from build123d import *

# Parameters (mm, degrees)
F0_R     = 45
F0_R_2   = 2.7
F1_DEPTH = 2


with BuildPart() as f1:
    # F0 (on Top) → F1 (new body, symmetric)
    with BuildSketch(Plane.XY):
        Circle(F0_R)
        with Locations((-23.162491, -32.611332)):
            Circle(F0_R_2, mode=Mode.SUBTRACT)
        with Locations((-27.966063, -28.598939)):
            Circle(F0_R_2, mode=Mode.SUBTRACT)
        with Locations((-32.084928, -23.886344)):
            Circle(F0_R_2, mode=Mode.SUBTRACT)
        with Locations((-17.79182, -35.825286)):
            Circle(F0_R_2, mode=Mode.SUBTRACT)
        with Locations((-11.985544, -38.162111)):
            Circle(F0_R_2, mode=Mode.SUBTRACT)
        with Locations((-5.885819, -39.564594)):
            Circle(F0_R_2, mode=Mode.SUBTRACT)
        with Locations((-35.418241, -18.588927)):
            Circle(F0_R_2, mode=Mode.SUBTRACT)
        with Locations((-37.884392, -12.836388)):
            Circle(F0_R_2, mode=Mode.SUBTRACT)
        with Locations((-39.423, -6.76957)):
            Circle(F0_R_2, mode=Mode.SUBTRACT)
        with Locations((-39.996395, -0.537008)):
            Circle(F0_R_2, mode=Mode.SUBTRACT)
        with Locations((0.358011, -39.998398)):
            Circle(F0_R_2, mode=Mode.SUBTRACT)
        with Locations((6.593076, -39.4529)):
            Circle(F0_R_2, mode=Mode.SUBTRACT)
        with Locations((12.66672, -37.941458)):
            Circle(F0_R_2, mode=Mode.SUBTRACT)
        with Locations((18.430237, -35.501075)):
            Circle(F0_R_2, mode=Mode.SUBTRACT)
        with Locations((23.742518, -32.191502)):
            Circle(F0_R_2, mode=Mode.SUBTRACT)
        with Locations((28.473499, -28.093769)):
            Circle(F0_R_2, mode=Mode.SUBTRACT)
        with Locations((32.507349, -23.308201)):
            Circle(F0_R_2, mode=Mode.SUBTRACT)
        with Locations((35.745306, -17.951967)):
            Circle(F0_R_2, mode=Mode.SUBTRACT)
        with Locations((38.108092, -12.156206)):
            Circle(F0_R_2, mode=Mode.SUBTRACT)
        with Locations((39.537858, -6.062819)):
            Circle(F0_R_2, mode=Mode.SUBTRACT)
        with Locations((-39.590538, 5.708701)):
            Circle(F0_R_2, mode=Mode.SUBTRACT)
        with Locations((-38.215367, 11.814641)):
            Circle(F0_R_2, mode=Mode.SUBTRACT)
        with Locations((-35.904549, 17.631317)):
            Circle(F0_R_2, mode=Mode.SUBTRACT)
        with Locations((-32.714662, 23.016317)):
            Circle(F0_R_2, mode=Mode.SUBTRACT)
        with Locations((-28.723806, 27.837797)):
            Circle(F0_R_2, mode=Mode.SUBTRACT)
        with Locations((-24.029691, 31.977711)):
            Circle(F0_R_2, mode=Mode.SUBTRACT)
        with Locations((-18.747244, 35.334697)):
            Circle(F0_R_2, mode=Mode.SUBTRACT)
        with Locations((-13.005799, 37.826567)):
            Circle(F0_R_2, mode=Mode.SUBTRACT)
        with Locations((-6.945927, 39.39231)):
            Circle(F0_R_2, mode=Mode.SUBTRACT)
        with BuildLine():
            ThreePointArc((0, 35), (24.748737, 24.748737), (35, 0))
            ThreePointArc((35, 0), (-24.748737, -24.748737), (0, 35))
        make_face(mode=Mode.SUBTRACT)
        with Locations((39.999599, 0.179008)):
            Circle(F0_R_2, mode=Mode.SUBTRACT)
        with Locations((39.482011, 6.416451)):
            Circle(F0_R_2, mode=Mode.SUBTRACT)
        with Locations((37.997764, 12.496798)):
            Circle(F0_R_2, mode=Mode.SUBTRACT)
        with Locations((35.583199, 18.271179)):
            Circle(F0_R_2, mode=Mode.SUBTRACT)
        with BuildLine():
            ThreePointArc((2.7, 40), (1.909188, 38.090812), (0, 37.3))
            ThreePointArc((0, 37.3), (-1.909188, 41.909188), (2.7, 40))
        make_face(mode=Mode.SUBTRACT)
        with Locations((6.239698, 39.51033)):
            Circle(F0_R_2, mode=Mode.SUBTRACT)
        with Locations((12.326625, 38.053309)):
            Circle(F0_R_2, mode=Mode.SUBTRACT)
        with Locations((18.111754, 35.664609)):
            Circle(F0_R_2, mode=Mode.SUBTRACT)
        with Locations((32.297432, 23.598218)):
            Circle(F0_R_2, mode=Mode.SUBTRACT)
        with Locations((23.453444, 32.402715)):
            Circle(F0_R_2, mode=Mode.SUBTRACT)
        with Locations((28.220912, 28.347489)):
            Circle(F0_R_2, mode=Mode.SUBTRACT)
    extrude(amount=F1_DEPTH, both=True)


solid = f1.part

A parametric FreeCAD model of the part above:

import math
import FreeCAD as App
import Part
import Sketcher
from FreeCAD import Vector

doc = App.newDocument("Part")
body = doc.addObject("PartDesign::Body", "Body")

sketch1 = body.newObject("Sketcher::SketchObject", "Sketch")
sketch1.AttachmentSupport = (doc.getObject("XY_Plane"), [""])
sketch1.MapMode = "FlatFace"
sketch1.addGeometry([
    Part.Circle(Vector(0, 0, 0), Vector(0, 0, 1), 45),
    Part.Circle(Vector(-23.2, -32.6, 0), Vector(0, 0, 1), 2.7),
    Part.Circle(Vector(-32.1, -23.9, 0), Vector(0, 0, 1), 2.7),
    Part.Circle(Vector(-28, -28.6, 0), Vector(0, 0, 1), 2.7),
    Part.Circle(Vector(-12, -38.2, 0), Vector(0, 0, 1), 2.7),
    Part.Circle(Vector(-17.8, -35.8, 0), Vector(0, 0, 1), 2.7),
    Part.Circle(Vector(-5.9, -39.6, 0), Vector(0, 0, 1), 2.7),
    Part.Circle(Vector(-35.4, -18.6, 0), Vector(0, 0, 1), 2.7),
    Part.Circle(Vector(-37.9, -12.8, 0), Vector(0, 0, 1), 2.7),
    Part.Circle(Vector(-39.4, -6.8, 0), Vector(0, 0, 1), 2.7),
    Part.Circle(Vector(-40, -0.5, 0), Vector(0, 0, 1), 2.7),
    Part.ArcOfCircle(Part.Circle(Vector(0, 0, 0), Vector(0, 0, 1), 35), math.radians(90), math.radians(360)),
    Part.ArcOfCircle(Part.Circle(Vector(0, 0, 0), Vector(0, 0, 1), 35), math.radians(0), math.radians(90)),
    Part.Circle(Vector(0.4, -40, 0), Vector(0, 0, 1), 2.7),
    Part.Circle(Vector(6.6, -39.5, 0), Vector(0, 0, 1), 2.7),
    Part.Circle(Vector(12.7, -37.9, 0), Vector(0, 0, 1), 2.7),
    Part.Circle(Vector(18.4, -35.5, 0), Vector(0, 0, 1), 2.7),
    Part.Circle(Vector(23.7, -32.2, 0), Vector(0, 0, 1), 2.7),
    Part.Circle(Vector(28.5, -28.1, 0), Vector(0, 0, 1), 2.7),
    Part.Circle(Vector(32.5, -23.3, 0), Vector(0, 0, 1), 2.7),
    Part.Circle(Vector(35.7, -18, 0), Vector(0, 0, 1), 2.7),
    Part.Circle(Vector(38.1, -12.2, 0), Vector(0, 0, 1), 2.7),
    Part.Circle(Vector(39.5, -6.1, 0), Vector(0, 0, 1), 2.7),
    Part.Circle(Vector(-39.6, 5.7, 0), Vector(0, 0, 1), 2.7),
    Part.Circle(Vector(-38.2, 11.8, 0), Vector(0, 0, 1), 2.7),
    Part.Circle(Vector(-35.9, 17.6, 0), Vector(0, 0, 1), 2.7),
    Part.Circle(Vector(-32.7, 23, 0), Vector(0, 0, 1), 2.7),
    Part.Circle(Vector(-28.7, 27.8, 0), Vector(0, 0, 1), 2.7),
    Part.Circle(Vector(-24, 32, 0), Vector(0, 0, 1), 2.7),
    Part.Circle(Vector(-18.7, 35.3, 0), Vector(0, 0, 1), 2.7),
    Part.Circle(Vector(-13, 37.8, 0), Vector(0, 0, 1), 2.7),
    Part.Circle(Vector(-6.9, 39.4, 0), Vector(0, 0, 1), 2.7),
    Part.ArcOfCircle(Part.Circle(Vector(0, 40, 0), Vector(0, 0, 1), 2.7), math.radians(0), math.radians(270)),
    Part.ArcOfCircle(Part.Circle(Vector(0, 40, 0), Vector(0, 0, 1), 2.7), math.radians(-90), math.radians(0)),
    Part.Circle(Vector(40, 0.2, 0), Vector(0, 0, 1), 2.7),
    Part.Circle(Vector(39.5, 6.4, 0), Vector(0, 0, 1), 2.7),
    Part.Circle(Vector(38, 12.5, 0), Vector(0, 0, 1), 2.7),
    Part.Circle(Vector(35.6, 18.3, 0), Vector(0, 0, 1), 2.7),
    Part.Circle(Vector(6.2, 39.5, 0), Vector(0, 0, 1), 2.7),
    Part.Circle(Vector(18.1, 35.7, 0), Vector(0, 0, 1), 2.7),
    Part.Circle(Vector(12.3, 38.1, 0), Vector(0, 0, 1), 2.7),
    Part.Circle(Vector(28.2, 28.3, 0), Vector(0, 0, 1), 2.7),
    Part.Circle(Vector(32.3, 23.6, 0), Vector(0, 0, 1), 2.7),
    Part.Circle(Vector(23.5, 32.4, 0), Vector(0, 0, 1), 2.7),
], False)
sketch1.addConstraint([
    Sketcher.Constraint("Tangent", 11, 1, 12, 2),
    Sketcher.Constraint("Coincident", 12, 1, 11, 2),
    Sketcher.Constraint("Tangent", 32, 1, 33, 2),
    Sketcher.Constraint("Coincident", 33, 1, 32, 2),
    Sketcher.Constraint("Coincident", 0, 3, -1, 1),
    Sketcher.Constraint("Coincident", 11, 3, -1, 1),
    Sketcher.Constraint("Equal", 1, 2),
    Sketcher.Constraint("Equal", 2, 3),
    Sketcher.Constraint("Equal", 3, 4),
    Sketcher.Constraint("Equal", 4, 5),
    Sketcher.Constraint("Equal", 5, 6),
    Sketcher.Constraint("Equal", 6, 7),
    Sketcher.Constraint("Equal", 7, 8),
    Sketcher.Constraint("Equal", 8, 9),
    Sketcher.Constraint("Equal", 9, 10),
    Sketcher.Constraint("Equal", 10, 13),
    Sketcher.Constraint("Equal", 13, 14),
    Sketcher.Constraint("Equal", 14, 15),
    Sketcher.Constraint("Equal", 15, 16),
    Sketcher.Constraint("Equal", 16, 17),
    Sketcher.Constraint("Equal", 17, 18),
    Sketcher.Constraint("Equal", 18, 19),
    Sketcher.Constraint("Equal", 19, 20),
    Sketcher.Constraint("Equal", 20, 21),
    Sketcher.Constraint("Equal", 21, 22),
    Sketcher.Constraint("Equal", 22, 23),
    Sketcher.Constraint("Equal", 23, 24),
    Sketcher.Constraint("Equal", 24, 25),
    Sketcher.Constraint("Equal", 25, 26),
    Sketcher.Constraint("Equal", 26, 27),
    Sketcher.Constraint("Equal", 27, 28),
    Sketcher.Constraint("Equal", 28, 29),
    Sketcher.Constraint("Equal", 29, 30),
    Sketcher.Constraint("Equal", 30, 31),
    Sketcher.Constraint("Equal", 31, 32),
    Sketcher.Constraint("Equal", 33, 34),
    Sketcher.Constraint("Equal", 34, 35),
    Sketcher.Constraint("Equal", 35, 36),
    Sketcher.Constraint("Equal", 36, 37),
    Sketcher.Constraint("Equal", 37, 38),
    Sketcher.Constraint("Equal", 38, 39),
    Sketcher.Constraint("Equal", 39, 40),
    Sketcher.Constraint("Equal", 40, 41),
    Sketcher.Constraint("Equal", 41, 42),
    Sketcher.Constraint("Equal", 42, 43),
    Sketcher.Constraint("PointOnObject", 32, 3, -2),
    Sketcher.Constraint("PointOnObject", 11, 1, -2),
    Sketcher.Constraint("PointOnObject", 12, 1, -1),
    Sketcher.Constraint("PointOnObject", 33, 1, -2),
    Sketcher.Constraint("Horizontal", 33, 3, 32, 1),
    Sketcher.Constraint("Diameter", 0, 90.0),
    Sketcher.Constraint("Radius", 11, 35.0),
    Sketcher.Constraint("Diameter", 1, 5.4),
    Sketcher.Constraint("DistanceY", -1, 1, 32, 3, 40.0),
    Sketcher.Constraint("DistanceX", 9, 3, -1, 1, 39.423),
    Sketcher.Constraint("DistanceX", 5, 3, 6, 3, 11.906001),
    Sketcher.Constraint("DistanceY", 25, 3, 26, 3, 5.385),
    Sketcher.Constraint("DistanceY", 22, 3, 37, 3, 24.333998),
    Sketcher.Constraint("DistanceY", 40, 3, 31, 3, 1.339001),
    Sketcher.Constraint("DistanceY", 13, 3, -1, 1, 39.998398),
    Sketcher.Constraint("DistanceY", 14, 3, -1, 1, 39.4529),
    Sketcher.Constraint("DistanceX", -1, 1, 18, 3, 28.473499),
    Sketcher.Constraint("DistanceY", 19, 3, -1, 1, 23.308201),
    Sketcher.Constraint("DistanceY", -1, 1, 23, 3, 5.708701),
    Sketcher.Constraint("DistanceX", 30, 3, -1, 1, 13.005799),
    Sketcher.Constraint("DistanceX", -1, 1, 34, 3, 39.999599),
    Sketcher.Constraint("DistanceX", -1, 1, 37, 3, 35.583199),
    Sketcher.Constraint("DistanceX", 8, 3, 1, 3, 14.721901),
    Sketcher.Constraint("DistanceX", 15, 3, 17, 3, 11.075798),
    Sketcher.Constraint("DistanceY", 17, 3, 19, 3, 8.883301),
    Sketcher.Constraint("DistanceY", 27, 3, 29, 3, 7.4969),
    Sketcher.Constraint("DistanceY", 28, 3, 31, 3, 7.414599),
    Sketcher.Constraint("DistanceX", 33, 3, 38, 3, 6.239699),
    Sketcher.Constraint("DistanceY", 39, 3, 31, 3, 3.727701),
    Sketcher.Constraint("DistanceX", 41, 3, 35, 3, 11.261099),
    Sketcher.Constraint("DistanceX", 1, 3, -1, 1, 23.162491),
    Sketcher.Constraint("DistanceY", 1, 3, -1, 1, 32.611332),
    Sketcher.Constraint("DistanceY", 3, 3, -1, 1, 28.598939),
    Sketcher.Constraint("DistanceY", 4, 3, -1, 1, 38.162111),
    Sketcher.Constraint("DistanceX", 5, 3, -1, 1, 17.79182),
    Sketcher.Constraint("DistanceX", 7, 3, -1, 1, 35.418241),
    Sketcher.Constraint("DistanceY", 9, 3, -1, 1, 6.76957),
    Sketcher.Constraint("DistanceY", 10, 3, -1, 1, 0.537008),
    Sketcher.Constraint("DistanceX", -1, 1, 13, 3, 0.358011),
    Sketcher.Constraint("DistanceX", -1, 1, 15, 3, 12.66672),
    Sketcher.Constraint("DistanceY", 18, 3, -1, 1, 28.093769),
    Sketcher.Constraint("DistanceX", -1, 1, 19, 3, 32.507349),
    Sketcher.Constraint("DistanceY", 22, 3, -1, 1, 6.062819),
    Sketcher.Constraint("DistanceX", 23, 3, -1, 1, 39.590538),
    Sketcher.Constraint("DistanceY", -1, 1, 24, 3, 11.814641),
    Sketcher.Constraint("DistanceX", 25, 3, -1, 1, 35.904549),
    Sketcher.Constraint("DistanceX", 26, 3, -1, 1, 32.714662),
    Sketcher.Constraint("DistanceX", 28, 3, -1, 1, 24.029691),
    Sketcher.Constraint("DistanceY", -1, 1, 28, 3, 31.977711),
    Sketcher.Constraint("DistanceX", -1, 1, 35, 3, 39.482011),
    Sketcher.Constraint("DistanceY", -1, 1, 35, 3, 6.416451),
    Sketcher.Constraint("DistanceY", -1, 1, 38, 3, 39.51033),
    Sketcher.Constraint("DistanceY", -1, 1, 41, 3, 28.347489),
    Sketcher.Constraint("DistanceX", 3, 3, 1, 3, 4.803572),
    Sketcher.Constraint("DistanceX", 3, 3, 4, 3, 15.980519),
    Sketcher.Constraint("DistanceY", 5, 3, 2, 3, 11.938942),
    Sketcher.Constraint("DistanceY", 6, 3, 5, 3, 3.739308),
    Sketcher.Constraint("DistanceX", 2, 3, 6, 3, 26.199109),
    Sketcher.Constraint("DistanceY", 5, 3, 7, 3, 17.236359),
    Sketcher.Constraint("DistanceY", 7, 3, 8, 3, 5.752539),
    Sketcher.Constraint("DistanceY", 3, 3, 8, 3, 15.762551),
    Sketcher.Constraint("DistanceX", 4, 3, 14, 3, 18.57862),
    Sketcher.Constraint("DistanceY", 13, 3, 15, 3, 2.05694),
    Sketcher.Constraint("DistanceX", 14, 3, 16, 3, 11.837161),
    Sketcher.Constraint("DistanceY", 6, 3, 16, 3, 4.063519),
    Sketcher.Constraint("DistanceX", 16, 3, 20, 3, 17.315069),
    Sketcher.Constraint("DistanceY", 16, 3, 20, 3, 17.549108),
    Sketcher.Constraint("DistanceY", 20, 3, 21, 3, 5.795761),
    Sketcher.Constraint("DistanceX", 19, 3, 22, 3, 7.030509),
    Sketcher.Constraint("DistanceX", 23, 3, 24, 3, 1.375171),
    Sketcher.Constraint("DistanceY", 26, 3, 27, 3, 4.82148),
    Sketcher.Constraint("DistanceX", 24, 3, 27, 3, 9.491561),
    Sketcher.Constraint("DistanceX", 10, 3, 27, 3, 11.272589),
    Sketcher.Constraint("DistanceY", 29, 3, 30, 3, 2.49187),
    Sketcher.Constraint("DistanceX", 30, 3, 31, 3, 6.059872),
    Sketcher.Constraint("DistanceY", 19, 3, 34, 3, 23.487209),
    Sketcher.Constraint("DistanceX", 21, 3, 35, 3, 1.373919),
    Sketcher.Constraint("DistanceY", 34, 3, 36, 3, 12.31779),
    Sketcher.Constraint("DistanceX", 36, 3, 21, 3, 0.110328),
    Sketcher.Constraint("DistanceX", 29, 3, 38, 3, 24.986942),
    Sketcher.Constraint("DistanceX", 31, 3, 39, 3, 25.057681),
    Sketcher.Constraint("DistanceX", 40, 3, 39, 3, 5.785129),
    Sketcher.Constraint("DistanceX", 41, 3, 42, 3, 4.07652),
    Sketcher.Constraint("DistanceY", 42, 3, 41, 3, 4.749271),
    Sketcher.Constraint("DistanceX", 39, 3, 43, 3, 5.34169),
    Sketcher.Constraint("DistanceY", -1, 1, 25, 3, 17.631317),
    Sketcher.Constraint("DistanceY", -1, 1, 43, 3, 32.402715),
])
pad1 = body.newObject("PartDesign::Pad", "Pad")
pad1.Profile = sketch1
pad1.Length = 4
pad1.Midplane = True

doc.recompute()
